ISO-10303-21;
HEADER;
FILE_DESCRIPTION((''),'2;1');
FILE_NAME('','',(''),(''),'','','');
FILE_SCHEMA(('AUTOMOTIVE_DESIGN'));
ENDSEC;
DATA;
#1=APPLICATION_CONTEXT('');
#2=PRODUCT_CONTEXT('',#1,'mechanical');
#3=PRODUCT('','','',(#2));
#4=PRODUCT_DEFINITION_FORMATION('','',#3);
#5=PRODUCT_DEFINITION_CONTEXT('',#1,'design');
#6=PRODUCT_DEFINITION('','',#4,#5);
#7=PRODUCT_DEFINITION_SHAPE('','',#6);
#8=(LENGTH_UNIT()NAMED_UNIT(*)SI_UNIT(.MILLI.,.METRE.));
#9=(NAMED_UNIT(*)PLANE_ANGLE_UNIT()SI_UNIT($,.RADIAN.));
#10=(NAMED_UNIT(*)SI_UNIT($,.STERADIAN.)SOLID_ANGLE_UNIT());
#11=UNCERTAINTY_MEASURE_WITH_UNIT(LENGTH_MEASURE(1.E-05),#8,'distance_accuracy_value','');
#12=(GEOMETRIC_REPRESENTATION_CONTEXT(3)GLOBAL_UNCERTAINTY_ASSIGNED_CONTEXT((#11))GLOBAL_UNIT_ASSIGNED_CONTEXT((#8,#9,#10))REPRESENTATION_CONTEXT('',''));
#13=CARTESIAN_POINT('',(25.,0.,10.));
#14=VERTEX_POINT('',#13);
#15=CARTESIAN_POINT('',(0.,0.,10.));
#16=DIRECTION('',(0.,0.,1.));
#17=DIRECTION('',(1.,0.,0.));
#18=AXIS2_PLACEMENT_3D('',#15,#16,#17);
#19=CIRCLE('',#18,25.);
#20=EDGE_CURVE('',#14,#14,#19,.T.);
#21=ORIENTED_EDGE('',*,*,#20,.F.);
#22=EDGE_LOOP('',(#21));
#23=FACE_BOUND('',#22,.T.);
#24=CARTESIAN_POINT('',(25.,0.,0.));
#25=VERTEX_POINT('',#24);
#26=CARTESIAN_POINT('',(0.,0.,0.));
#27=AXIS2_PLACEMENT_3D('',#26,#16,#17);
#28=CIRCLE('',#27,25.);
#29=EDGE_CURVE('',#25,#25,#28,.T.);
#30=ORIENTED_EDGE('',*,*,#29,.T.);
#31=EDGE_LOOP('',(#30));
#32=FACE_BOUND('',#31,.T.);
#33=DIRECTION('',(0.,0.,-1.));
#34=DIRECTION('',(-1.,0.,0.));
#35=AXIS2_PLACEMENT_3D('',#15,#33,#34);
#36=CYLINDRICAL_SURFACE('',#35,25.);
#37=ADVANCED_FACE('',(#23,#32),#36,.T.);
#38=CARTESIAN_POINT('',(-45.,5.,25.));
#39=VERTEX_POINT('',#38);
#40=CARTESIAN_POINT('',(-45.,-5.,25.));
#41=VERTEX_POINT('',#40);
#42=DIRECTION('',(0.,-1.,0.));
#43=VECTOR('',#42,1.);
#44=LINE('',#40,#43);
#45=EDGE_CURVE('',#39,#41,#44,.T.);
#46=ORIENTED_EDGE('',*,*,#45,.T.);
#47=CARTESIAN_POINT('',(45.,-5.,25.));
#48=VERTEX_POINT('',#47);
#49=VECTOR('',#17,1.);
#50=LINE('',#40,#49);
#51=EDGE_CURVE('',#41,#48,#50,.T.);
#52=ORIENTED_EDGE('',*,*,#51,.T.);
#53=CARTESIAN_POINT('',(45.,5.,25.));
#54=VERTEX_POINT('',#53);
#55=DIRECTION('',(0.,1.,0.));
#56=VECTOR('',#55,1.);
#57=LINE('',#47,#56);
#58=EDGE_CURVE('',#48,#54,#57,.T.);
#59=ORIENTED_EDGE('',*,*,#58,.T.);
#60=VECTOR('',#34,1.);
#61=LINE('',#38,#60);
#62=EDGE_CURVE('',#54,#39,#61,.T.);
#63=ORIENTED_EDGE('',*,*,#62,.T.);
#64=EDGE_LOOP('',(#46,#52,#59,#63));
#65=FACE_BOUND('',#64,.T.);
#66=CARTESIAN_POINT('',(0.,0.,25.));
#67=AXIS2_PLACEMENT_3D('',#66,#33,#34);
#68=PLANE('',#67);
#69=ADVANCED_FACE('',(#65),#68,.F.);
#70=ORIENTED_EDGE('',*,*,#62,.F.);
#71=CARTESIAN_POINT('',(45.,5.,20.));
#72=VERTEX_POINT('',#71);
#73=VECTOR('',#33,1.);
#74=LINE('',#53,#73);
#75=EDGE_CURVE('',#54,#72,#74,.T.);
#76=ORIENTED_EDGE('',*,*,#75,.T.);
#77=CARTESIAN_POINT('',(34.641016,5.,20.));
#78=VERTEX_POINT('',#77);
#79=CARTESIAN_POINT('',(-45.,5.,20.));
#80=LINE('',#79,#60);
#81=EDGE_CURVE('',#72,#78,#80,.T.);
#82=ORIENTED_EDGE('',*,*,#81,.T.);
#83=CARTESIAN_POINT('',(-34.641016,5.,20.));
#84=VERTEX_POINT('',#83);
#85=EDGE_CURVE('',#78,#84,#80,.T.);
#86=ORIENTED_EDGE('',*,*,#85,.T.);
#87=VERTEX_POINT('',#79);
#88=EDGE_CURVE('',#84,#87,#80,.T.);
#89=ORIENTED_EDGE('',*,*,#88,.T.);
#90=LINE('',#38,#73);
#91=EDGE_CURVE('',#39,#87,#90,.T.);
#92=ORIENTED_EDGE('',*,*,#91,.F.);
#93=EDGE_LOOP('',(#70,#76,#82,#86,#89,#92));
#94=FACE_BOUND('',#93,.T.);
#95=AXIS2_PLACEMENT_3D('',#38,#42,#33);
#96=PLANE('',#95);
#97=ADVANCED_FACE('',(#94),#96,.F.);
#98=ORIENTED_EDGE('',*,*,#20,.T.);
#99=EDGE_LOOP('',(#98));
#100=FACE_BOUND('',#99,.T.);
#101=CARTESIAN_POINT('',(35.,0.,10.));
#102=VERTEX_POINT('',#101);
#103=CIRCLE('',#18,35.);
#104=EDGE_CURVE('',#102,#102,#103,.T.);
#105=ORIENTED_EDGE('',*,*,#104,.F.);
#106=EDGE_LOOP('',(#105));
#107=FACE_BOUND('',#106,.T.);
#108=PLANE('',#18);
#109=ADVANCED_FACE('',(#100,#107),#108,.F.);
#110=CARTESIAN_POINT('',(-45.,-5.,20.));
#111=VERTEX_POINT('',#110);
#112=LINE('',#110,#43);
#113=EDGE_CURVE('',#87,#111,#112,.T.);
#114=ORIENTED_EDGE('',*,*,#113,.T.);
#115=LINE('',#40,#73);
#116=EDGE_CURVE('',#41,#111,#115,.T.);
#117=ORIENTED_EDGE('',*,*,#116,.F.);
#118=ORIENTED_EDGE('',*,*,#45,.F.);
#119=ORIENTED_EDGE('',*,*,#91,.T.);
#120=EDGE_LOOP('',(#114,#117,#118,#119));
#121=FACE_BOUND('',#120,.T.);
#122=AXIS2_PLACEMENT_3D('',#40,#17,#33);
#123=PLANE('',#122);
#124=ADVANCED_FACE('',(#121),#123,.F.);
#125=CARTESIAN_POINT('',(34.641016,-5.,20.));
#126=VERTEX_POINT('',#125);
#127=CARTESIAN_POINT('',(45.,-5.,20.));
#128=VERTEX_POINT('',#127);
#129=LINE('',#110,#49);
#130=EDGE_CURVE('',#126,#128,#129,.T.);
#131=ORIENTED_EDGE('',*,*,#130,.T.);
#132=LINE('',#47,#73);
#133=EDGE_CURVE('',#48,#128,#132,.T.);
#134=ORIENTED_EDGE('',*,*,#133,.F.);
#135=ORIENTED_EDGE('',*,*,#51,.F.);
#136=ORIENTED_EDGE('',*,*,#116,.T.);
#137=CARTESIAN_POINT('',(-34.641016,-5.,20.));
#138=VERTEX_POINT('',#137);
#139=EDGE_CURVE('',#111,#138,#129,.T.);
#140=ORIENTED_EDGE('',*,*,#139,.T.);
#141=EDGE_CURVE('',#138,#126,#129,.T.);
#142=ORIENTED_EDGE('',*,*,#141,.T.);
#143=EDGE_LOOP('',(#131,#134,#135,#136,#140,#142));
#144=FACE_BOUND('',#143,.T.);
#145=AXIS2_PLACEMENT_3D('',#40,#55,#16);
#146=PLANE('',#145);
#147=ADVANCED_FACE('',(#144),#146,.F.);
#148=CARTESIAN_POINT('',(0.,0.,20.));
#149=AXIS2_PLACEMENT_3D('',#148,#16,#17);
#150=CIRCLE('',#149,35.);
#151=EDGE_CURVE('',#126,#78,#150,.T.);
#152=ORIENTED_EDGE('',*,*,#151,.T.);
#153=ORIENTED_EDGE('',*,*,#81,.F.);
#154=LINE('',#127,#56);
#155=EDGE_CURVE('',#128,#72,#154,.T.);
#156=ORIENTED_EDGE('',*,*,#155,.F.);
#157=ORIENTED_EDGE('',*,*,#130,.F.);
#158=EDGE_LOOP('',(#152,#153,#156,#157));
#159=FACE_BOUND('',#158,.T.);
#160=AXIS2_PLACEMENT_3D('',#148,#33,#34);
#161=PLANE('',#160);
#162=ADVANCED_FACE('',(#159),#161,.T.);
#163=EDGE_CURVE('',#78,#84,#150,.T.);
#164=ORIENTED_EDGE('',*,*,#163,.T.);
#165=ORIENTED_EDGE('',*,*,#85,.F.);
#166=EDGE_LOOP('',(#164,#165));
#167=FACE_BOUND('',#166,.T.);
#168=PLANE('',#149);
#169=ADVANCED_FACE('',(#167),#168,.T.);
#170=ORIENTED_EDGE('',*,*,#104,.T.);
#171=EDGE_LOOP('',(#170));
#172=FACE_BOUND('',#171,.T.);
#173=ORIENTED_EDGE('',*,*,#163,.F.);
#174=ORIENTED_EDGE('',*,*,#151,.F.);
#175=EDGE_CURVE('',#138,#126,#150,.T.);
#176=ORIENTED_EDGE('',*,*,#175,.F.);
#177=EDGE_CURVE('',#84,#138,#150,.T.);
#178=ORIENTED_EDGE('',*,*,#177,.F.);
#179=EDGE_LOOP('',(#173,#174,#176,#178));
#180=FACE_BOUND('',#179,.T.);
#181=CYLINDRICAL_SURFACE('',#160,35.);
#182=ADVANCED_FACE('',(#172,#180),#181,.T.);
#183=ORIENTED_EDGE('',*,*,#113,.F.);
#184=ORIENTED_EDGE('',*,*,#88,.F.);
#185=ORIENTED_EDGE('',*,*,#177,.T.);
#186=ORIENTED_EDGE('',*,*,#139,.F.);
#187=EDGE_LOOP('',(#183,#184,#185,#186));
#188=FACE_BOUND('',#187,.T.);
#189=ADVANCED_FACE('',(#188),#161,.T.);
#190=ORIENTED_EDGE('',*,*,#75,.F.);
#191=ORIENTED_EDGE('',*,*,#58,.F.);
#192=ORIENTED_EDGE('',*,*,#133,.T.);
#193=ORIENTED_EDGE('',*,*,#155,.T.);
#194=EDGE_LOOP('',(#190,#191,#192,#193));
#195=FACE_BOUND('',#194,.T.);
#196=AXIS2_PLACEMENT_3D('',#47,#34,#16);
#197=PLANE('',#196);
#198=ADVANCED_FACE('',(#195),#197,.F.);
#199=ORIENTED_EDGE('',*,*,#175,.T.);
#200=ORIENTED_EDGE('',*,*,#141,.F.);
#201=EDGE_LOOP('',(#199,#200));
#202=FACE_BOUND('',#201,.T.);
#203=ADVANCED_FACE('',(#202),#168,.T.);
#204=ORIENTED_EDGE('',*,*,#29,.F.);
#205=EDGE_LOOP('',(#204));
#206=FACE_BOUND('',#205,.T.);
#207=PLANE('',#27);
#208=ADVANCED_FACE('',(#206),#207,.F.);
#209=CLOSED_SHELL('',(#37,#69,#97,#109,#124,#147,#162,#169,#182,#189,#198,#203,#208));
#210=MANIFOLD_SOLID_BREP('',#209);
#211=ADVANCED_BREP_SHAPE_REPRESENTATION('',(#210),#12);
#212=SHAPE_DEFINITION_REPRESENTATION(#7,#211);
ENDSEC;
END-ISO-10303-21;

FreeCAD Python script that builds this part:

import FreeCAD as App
import Part
import Sketcher
from FreeCAD import Vector
Q = App.Units.Quantity

doc = App.newDocument("Part")
body = doc.addObject("PartDesign::Body", "Body")

sketch1 = doc.addObject("Sketcher::SketchObject", "Sketch")
body.addObject(sketch1)
sketch1.AttachmentSupport = (doc.XY_Plane, [""])
sketch1.MapMode = "FlatFace"
sketch1.addGeometry(Part.Circle(Vector(0, 0, 0), Vector(0, 0, 1), 25), False)
sketch1.addConstraint([
    Sketcher.Constraint("Coincident", 0, 3, -1, 1),
    Sketcher.Constraint("Diameter", 0, Q("50 mm")),
])
pad1 = doc.addObject("PartDesign::Pad", "Pad")
body.addObject(pad1)
pad1.Profile = sketch1
pad1.Length = 10

sketch2 = doc.addObject("Sketcher::SketchObject", "Sketch001")
body.addObject(sketch2)
sketch2.AttachmentSupport = (doc.XY_Plane, [""])
sketch2.MapMode = "FlatFace"
sketch2.AttachmentOffset = App.Placement(Vector(0, 0, 10), App.Rotation())
sketch2.addGeometry(Part.Circle(Vector(0, 0, 0), Vector(0, 0, 1), 35), False)
sketch2.addConstraint([
    Sketcher.Constraint("Coincident", 0, 3, -1, 1),
    Sketcher.Constraint("Diameter", 0, Q("70 mm")),
])
pad2 = doc.addObject("PartDesign::Pad", "Pad001")
body.addObject(pad2)
pad2.Profile = sketch2
pad2.Length = 10

sketch3 = doc.addObject("Sketcher::SketchObject", "Sketch002")
body.addObject(sketch3)
sketch3.AttachmentSupport = (doc.XY_Plane, [""])
sketch3.MapMode = "FlatFace"
sketch3.AttachmentOffset = App.Placement(Vector(0, 0, 20), App.Rotation())
sketch3.addGeometry([
    Part.LineSegment(Vector(-45, 5, 0), Vector(-45, -5, 0)),
    Part.LineSegment(Vector(-45, -5, 0), Vector(45, -5, 0)),
    Part.LineSegment(Vector(45, -5, 0), Vector(45, 5, 0)),
    Part.LineSegment(Vector(45, 5, 0), Vector(-45, 5, 0)),
], False)
sketch3.addConstraint([
    Sketcher.Constraint("Coincident", 0, 2, 1, 1),
    Sketcher.Constraint("Coincident", 1, 2, 2, 1),
    Sketcher.Constraint("Coincident", 2, 2, 3, 1),
    Sketcher.Constraint("Coincident", 3, 2, 0, 1),
    Sketcher.Constraint("Vertical", 0),
    Sketcher.Constraint("Horizontal", 1),
    Sketcher.Constraint("Vertical", 2),
    Sketcher.Constraint("Horizontal", 3),
    Sketcher.Constraint("Symmetric", 0, 2, 2, 2, -1, 1),
    Sketcher.Constraint("DistanceX", 1, 1, 1, 2, Q("90 mm")),
    Sketcher.Constraint("DistanceY", 0, 2, 0, 1, Q("10 mm")),
])
pad3 = doc.addObject("PartDesign::Pad", "Pad002")
body.addObject(pad3)
pad3.Profile = sketch3
pad3.Length = 5

doc.recompute()
